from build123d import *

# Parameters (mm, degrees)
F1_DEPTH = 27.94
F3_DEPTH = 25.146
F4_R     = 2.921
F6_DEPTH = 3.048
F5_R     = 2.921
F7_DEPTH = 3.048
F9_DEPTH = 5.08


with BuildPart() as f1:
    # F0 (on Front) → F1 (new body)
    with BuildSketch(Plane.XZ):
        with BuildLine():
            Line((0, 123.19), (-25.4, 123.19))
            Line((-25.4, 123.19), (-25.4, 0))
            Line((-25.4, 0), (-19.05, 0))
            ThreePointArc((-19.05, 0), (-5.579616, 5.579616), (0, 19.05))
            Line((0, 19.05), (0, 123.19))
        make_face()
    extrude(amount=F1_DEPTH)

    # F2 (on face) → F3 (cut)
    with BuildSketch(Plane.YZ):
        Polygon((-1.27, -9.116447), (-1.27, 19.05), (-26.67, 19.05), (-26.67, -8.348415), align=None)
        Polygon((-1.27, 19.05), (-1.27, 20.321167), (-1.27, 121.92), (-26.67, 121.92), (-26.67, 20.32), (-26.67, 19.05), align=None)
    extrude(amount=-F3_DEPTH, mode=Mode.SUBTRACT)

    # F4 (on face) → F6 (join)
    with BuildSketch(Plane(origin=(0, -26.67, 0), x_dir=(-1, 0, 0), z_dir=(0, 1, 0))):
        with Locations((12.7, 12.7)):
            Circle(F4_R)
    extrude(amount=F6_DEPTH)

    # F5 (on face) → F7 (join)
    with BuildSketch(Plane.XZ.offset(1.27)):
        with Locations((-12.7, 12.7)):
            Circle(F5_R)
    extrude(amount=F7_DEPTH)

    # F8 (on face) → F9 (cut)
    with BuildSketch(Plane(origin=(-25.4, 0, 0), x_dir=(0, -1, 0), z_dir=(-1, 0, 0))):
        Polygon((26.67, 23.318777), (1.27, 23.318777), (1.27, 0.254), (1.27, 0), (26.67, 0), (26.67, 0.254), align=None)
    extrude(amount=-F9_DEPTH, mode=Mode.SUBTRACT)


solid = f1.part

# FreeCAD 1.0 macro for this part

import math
import FreeCAD as App
import Part
import Sketcher
Q = App.Units.Quantity


def add_polygon(sketch, points):
    """Adds a closed chain of lines whose ends are joined by coincident constraints."""
    first, n = sketch.GeometryCount, len(points)
    for a, b in zip(points, points[1:] + points[:1]):
        sketch.addGeometry(Part.LineSegment(App.Vector(*a, 0), App.Vector(*b, 0)), False)
    for i in range(n):
        sketch.addConstraint(Sketcher.Constraint("Coincident", first + i, 2, first + (i + 1) % n, 1))

doc = App.newDocument("Part")
body = doc.addObject("PartDesign::Body", "Body")

sketch1 = body.newObject("Sketcher::SketchObject", "Sketch")
sketch1.AttachmentSupport = (doc.getObject("XZ_Plane"), [""])
sketch1.MapMode = "FlatFace"
sketch1.addGeometry(Part.LineSegment(App.Vector(0, 123, 0), App.Vector(-25, 123, 0)), False)
sketch1.addGeometry(Part.LineSegment(App.Vector(-25, 123, 0), App.Vector(-25, 0, 0)), False)
sketch1.addGeometry(Part.LineSegment(App.Vector(-25, 0, 0), App.Vector(-19, 0, 0)), False)
sketch1.addGeometry(Part.ArcOfCircle(Part.Circle(App.Vector(-19, 19, 0), App.Vector(0, 0, 1), 19), math.radians(-90), math.radians(0)), False)
sketch1.addGeometry(Part.LineSegment(App.Vector(0, 19, 0), App.Vector(0, 123, 0)), False)
sketch1.addConstraint(Sketcher.Constraint("Coincident", 0, 2, 1, 1))
sketch1.addConstraint(Sketcher.Constraint("Coincident", 1, 2, 2, 1))
sketch1.addConstraint(Sketcher.Constraint("Tangent", 2, 2, 3, 1))
sketch1.addConstraint(Sketcher.Constraint("Tangent", 3, 2, 4, 1))
sketch1.addConstraint(Sketcher.Constraint("Coincident", 4, 2, 0, 1))
sketch1.addConstraint(Sketcher.Constraint("Horizontal", 0))
sketch1.addConstraint(Sketcher.Constraint("Vertical", 1))
sketch1.addConstraint(Sketcher.Constraint("Horizontal", 2))
sketch1.addConstraint(Sketcher.Constraint("Vertical", 4))
sketch1.addConstraint(Sketcher.Constraint("PointOnObject", 1, 2, -1))
sketch1.addConstraint(Sketcher.Constraint("PointOnObject", 3, 2, -2))
sketch1.addConstraint(Sketcher.Constraint("DistanceX", 0, 2, 0, 1, Q("1 in")))
sketch1.addConstraint(Sketcher.Constraint("Radius", 3, Q("0.75 in")))
sketch1.addConstraint(Sketcher.Constraint("DistanceY", 4, 1, 4, 2, Q("4.1 in")))
pad1 = body.newObject("PartDesign::Pad", "Pad")
pad1.Profile = sketch1
pad1.Length = Q("1.1 in")

sketch2 = body.newObject("Sketcher::SketchObject", "Sketch001")
sketch2.AttachmentSupport = (doc.getObject("YZ_Plane"), [""])
sketch2.MapMode = "FlatFace"
add_polygon(sketch2, [(-1, -9), (-1, 122), (-27, 122), (-27, -8)])
sketch2.addConstraint(Sketcher.Constraint("Vertical", 0))
sketch2.addConstraint(Sketcher.Constraint("Horizontal", 1))
sketch2.addConstraint(Sketcher.Constraint("Vertical", 2))
sketch2.addConstraint(Sketcher.Constraint("DistanceX", 1, 2, 1, 1, Q("1 in")))
sketch2.addConstraint(Sketcher.Constraint("DistanceY", -1, 1, 0, 2, Q("4.8 in")))
sketch2.addConstraint(Sketcher.Constraint("DistanceX", 0, 2, -1, 1, Q("0.05 in")))
sketch2.addConstraint(Sketcher.Constraint("Distance", 3, 25.411609))
sketch2.addConstraint(Sketcher.Constraint("DistanceY", 0, 1, 0, 2, 131.036447))
pocket1 = body.newObject("PartDesign::Pocket", "Pocket")
pocket1.Profile = sketch2
pocket1.Length = Q("0.99 in")

sketch3 = body.newObject("Sketcher::SketchObject", "Sketch002")
sketch3.AttachmentSupport = (doc.getObject("XZ_Plane"), [""])
sketch3.MapMode = "FlatFace"
sketch3.AttachmentOffset = App.Placement(App.Vector(0, 0, 1.05 * 25.4), App.Rotation())
sketch3.addGeometry(Part.Circle(App.Vector(-12.7, 12.7, 0), App.Vector(0, 0, 1), 2.9), False)
sketch3.addConstraint(Sketcher.Constraint("Diameter", 0, Q("0.23 in")))
sketch3.addConstraint(Sketcher.Constraint("DistanceX", 0, 3, -1, 1, Q("0.5 in")))
sketch3.addConstraint(Sketcher.Constraint("DistanceY", -1, 1, 0, 3, Q("0.5 in")))
pad2 = body.newObject("PartDesign::Pad", "Pad001")
pad2.Profile = sketch3
pad2.Length = Q("0.12 in")
pad2.Reversed = True

sketch4 = body.newObject("Sketcher::SketchObject", "Sketch003")
sketch4.AttachmentSupport = (doc.getObject("XZ_Plane"), [""])
sketch4.MapMode = "FlatFace"
sketch4.AttachmentOffset = App.Placement(App.Vector(0, 0, 0.05 * 25.4), App.Rotation())
sketch4.addGeometry(Part.Circle(App.Vector(-12.7, 12.7, 0), App.Vector(0, 0, 1), 2.9), False)
sketch4.addConstraint(Sketcher.Constraint("Diameter", 0, Q("0.23 in")))
sketch4.addConstraint(Sketcher.Constraint("DistanceX", 0, 3, -1, 1, Q("0.5 in")))
sketch4.addConstraint(Sketcher.Constraint("DistanceY", -1, 1, 0, 3, Q("0.5 in")))
pad3 = body.newObject("PartDesign::Pad", "Pad002")
pad3.Profile = sketch4
pad3.Length = Q("0.12 in")

sketch5 = body.newObject("Sketcher::SketchObject", "Sketch004")
sketch5.AttachmentSupport = (doc.getObject("YZ_Plane"), [""])
sketch5.MapMode = "FlatFace"
sketch5.AttachmentOffset = App.Placement(App.Vector(0, 0, -1 * 25.4), App.Rotation())
add_polygon(sketch5, [(-27, 23), (-1, 23), (-1, 0), (-27, 0)])
sketch5.addConstraint(Sketcher.Constraint("Horizontal", 0))
sketch5.addConstraint(Sketcher.Constraint("Vertical", 1))
sketch5.addConstraint(Sketcher.Constraint("Horizontal", 2))
sketch5.addConstraint(Sketcher.Constraint("Vertical", 3))
sketch5.addConstraint(Sketcher.Constraint("PointOnObject", 1, 2, -1))
sketch5.addConstraint(Sketcher.Constraint("DistanceX", 0, 1, 0, 2, Q("1 in")))
sketch5.addConstraint(Sketcher.Constraint("DistanceX", 0, 2, -1, 1, Q("0.05 in")))
sketch5.addConstraint(Sketcher.Constraint("DistanceY", 1, 2, 1, 1, 23.318777))
pocket2 = body.newObject("PartDesign::Pocket", "Pocket001")
pocket2.Profile = sketch5
pocket2.Length = Q("0.2 in")
pocket2.Reversed = True

doc.recompute()
